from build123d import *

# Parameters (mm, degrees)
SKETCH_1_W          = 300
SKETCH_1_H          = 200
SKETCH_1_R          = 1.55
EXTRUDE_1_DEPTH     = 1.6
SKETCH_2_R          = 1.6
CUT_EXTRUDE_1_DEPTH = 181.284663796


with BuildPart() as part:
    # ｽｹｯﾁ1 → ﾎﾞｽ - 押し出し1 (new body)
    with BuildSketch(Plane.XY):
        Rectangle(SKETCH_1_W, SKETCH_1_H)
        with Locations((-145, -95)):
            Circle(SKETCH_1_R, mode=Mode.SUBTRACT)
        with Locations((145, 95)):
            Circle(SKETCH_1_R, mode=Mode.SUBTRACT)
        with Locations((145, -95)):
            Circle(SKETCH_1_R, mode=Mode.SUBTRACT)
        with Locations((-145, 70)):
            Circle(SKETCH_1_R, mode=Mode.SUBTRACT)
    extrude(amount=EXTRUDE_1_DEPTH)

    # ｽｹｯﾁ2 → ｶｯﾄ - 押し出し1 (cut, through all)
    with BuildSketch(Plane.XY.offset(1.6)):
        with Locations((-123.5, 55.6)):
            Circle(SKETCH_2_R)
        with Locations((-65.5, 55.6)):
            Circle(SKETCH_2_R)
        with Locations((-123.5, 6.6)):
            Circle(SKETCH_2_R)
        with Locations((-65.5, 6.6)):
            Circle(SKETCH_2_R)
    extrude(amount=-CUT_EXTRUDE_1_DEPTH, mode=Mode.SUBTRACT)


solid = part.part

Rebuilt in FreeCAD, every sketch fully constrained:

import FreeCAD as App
import Part
import Sketcher

doc = App.newDocument("Part")
body = doc.addObject("PartDesign::Body", "Body")

sketch1 = doc.addObject("Sketcher::SketchObject", "Sketch")
body.addObject(sketch1)
sketch1.AttachmentSupport = (doc.XY_Plane, [""])
sketch1.MapMode = "FlatFace"
sketch1.addGeometry(Part.LineSegment(App.Vector(-150, 100, 0), App.Vector(-150, -100, 0)), False)
sketch1.addGeometry(Part.LineSegment(App.Vector(-150, -100, 0), App.Vector(150, -100, 0)), False)
sketch1.addGeometry(Part.LineSegment(App.Vector(150, -100, 0), App.Vector(150, 100, 0)), False)
sketch1.addGeometry(Part.LineSegment(App.Vector(150, 100, 0), App.Vector(-150, 100, 0)), False)
sketch1.addGeometry(Part.Circle(App.Vector(-145, -95, 0), App.Vector(0, 0, 1), 1.6), False)
sketch1.addGeometry(Part.Circle(App.Vector(145, -95, 0), App.Vector(0, 0, 1), 1.6), False)
sketch1.addGeometry(Part.Circle(App.Vector(-145, 70, 0), App.Vector(0, 0, 1), 1.6), False)
sketch1.addGeometry(Part.Circle(App.Vector(145, 95, 0), App.Vector(0, 0, 1), 1.6), False)
sketch1.addConstraint(Sketcher.Constraint("Coincident", 0, 2, 1, 1))
sketch1.addConstraint(Sketcher.Constraint("Coincident", 1, 2, 2, 1))
sketch1.addConstraint(Sketcher.Constraint("Coincident", 2, 2, 3, 1))
sketch1.addConstraint(Sketcher.Constraint("Coincident", 3, 2, 0, 1))
sketch1.addConstraint(Sketcher.Constraint("Vertical", 0))
sketch1.addConstraint(Sketcher.Constraint("Horizontal", 1))
sketch1.addConstraint(Sketcher.Constraint("Vertical", 2))
sketch1.addConstraint(Sketcher.Constraint("Horizontal", 3))
sketch1.addConstraint(Sketcher.Constraint("Equal", 4, 5))
sketch1.addConstraint(Sketcher.Constraint("Equal", 5, 6))
sketch1.addConstraint(Sketcher.Constraint("Equal", 6, 7))
sketch1.addConstraint(Sketcher.Constraint("Symmetric", 4, 3, 7, 3, -1, 1))
sketch1.addConstraint(Sketcher.Constraint("Symmetric", 0, 2, 2, 2, -1, 1))
sketch1.addConstraint(Sketcher.Constraint("Symmetric", 4, 3, 5, 3, -2))
sketch1.addConstraint(Sketcher.Constraint("Vertical", 4, 3, 6, 3))
sketch1.addConstraint(Sketcher.Constraint("Diameter", 4, 3.1))
sketch1.addConstraint(Sketcher.Constraint("DistanceX", 1, 1, 1, 2, 300.0))
sketch1.addConstraint(Sketcher.Constraint("DistanceY", 0, 2, 0, 1, 200.0))
sketch1.addConstraint(Sketcher.Constraint("DistanceX", 4, 3, -1, 1, 145.0))
sketch1.addConstraint(Sketcher.Constraint("DistanceY", 4, 3, -1, 1, 95.0))
sketch1.addConstraint(Sketcher.Constraint("DistanceY", -1, 1, 6, 3, 70.0))
pad1 = doc.addObject("PartDesign::Pad", "Pad")
body.addObject(pad1)
pad1.Profile = sketch1
pad1.Length = 1.6

sketch2 = doc.addObject("Sketcher::SketchObject", "Sketch001")
body.addObject(sketch2)
sketch2.AttachmentSupport = (doc.XY_Plane, [""])
sketch2.MapMode = "FlatFace"
sketch2.AttachmentOffset = App.Placement(App.Vector(0, 0, 1.6), App.Rotation())
sketch2.addGeometry(Part.Circle(App.Vector(-123.5, 55.6, 0), App.Vector(0, 0, 1), 1.6), False)
sketch2.addGeometry(Part.Circle(App.Vector(-65.5, 55.6, 0), App.Vector(0, 0, 1), 1.6), False)
sketch2.addGeometry(Part.Circle(App.Vector(-123.5, 6.6, 0), App.Vector(0, 0, 1), 1.6), False)
sketch2.addGeometry(Part.Circle(App.Vector(-65.5, 6.6, 0), App.Vector(0, 0, 1), 1.6), False)
sketch2.addConstraint(Sketcher.Constraint("Equal", 0, 1))
sketch2.addConstraint(Sketcher.Constraint("Equal", 1, 2))
sketch2.addConstraint(Sketcher.Constraint("Equal", 2, 3))
sketch2.addConstraint(Sketcher.Constraint("Horizontal", 0, 3, 1, 3))
sketch2.addConstraint(Sketcher.Constraint("Horizontal", 2, 3, 3, 3))
sketch2.addConstraint(Sketcher.Constraint("Vertical", 0, 3, 2, 3))
sketch2.addConstraint(Sketcher.Constraint("Vertical", 1, 3, 3, 3))
sketch2.addConstraint(Sketcher.Constraint("Diameter", 0, 3.2))
sketch2.addConstraint(Sketcher.Constraint("DistanceX", 0, 3, 1, 3, 58.0))
sketch2.addConstraint(Sketcher.Constraint("DistanceY", 2, 3, 0, 3, 49.0))
sketch2.addConstraint(Sketcher.Constraint("DistanceX", 0, 3, -1, 1, 123.5))
sketch2.addConstraint(Sketcher.Constraint("DistanceY", -1, 1, 0, 3, 55.6))
pocket1 = doc.addObject("PartDesign::Pocket", "Pocket")
body.addObject(pocket1)
pocket1.Profile = sketch2
pocket1.Type = "ThroughAll"

doc.recompute()
